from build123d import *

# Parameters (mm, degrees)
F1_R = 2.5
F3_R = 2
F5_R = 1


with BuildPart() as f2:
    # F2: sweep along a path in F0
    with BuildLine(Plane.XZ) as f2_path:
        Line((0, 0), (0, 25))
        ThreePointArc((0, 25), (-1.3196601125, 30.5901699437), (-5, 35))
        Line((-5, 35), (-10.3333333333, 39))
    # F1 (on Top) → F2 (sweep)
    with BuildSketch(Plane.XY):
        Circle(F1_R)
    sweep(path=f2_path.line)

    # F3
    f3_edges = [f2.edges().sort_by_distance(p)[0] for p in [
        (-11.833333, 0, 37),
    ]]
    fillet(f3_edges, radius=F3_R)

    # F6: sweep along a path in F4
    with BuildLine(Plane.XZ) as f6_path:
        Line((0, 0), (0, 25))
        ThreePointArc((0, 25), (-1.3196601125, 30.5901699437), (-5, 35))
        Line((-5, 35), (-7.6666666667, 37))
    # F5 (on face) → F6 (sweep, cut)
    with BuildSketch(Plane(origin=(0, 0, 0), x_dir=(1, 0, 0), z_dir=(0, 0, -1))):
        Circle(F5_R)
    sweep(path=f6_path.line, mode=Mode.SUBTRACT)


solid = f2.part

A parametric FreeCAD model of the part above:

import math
import FreeCAD as App
import Part
import Sketcher


def edges_at(feature, points):
    """Names of the edges that pass closest to the given points."""
    edges = feature.Shape.Edges
    near = lambda p: min(range(len(edges)), key=lambda i: edges[i].distToShape(Part.Vertex(*p))[0])
    return sorted({f"Edge{near(p) + 1}" for p in points})

doc = App.newDocument("Part")
body = doc.addObject("PartDesign::Body", "Body")

# Sketch on XY plane
sketch1 = doc.addObject("Sketcher::SketchObject", "Sketch")
body.addObject(sketch1)
sketch1.AttachmentSupport = (doc.XY_Plane, [""])
sketch1.MapMode = "FlatFace"
sketch1.addGeometry(Part.Circle(App.Vector(0, 0, 0), App.Vector(0, 0, 1), 2.5), False)
sketch1.addConstraint(Sketcher.Constraint("Coincident", 0, 3, -1, 1))
sketch1.addConstraint(Sketcher.Constraint("Diameter", 0, 5.0))

# Sketch on XZ plane
sketch2 = doc.addObject("Sketcher::SketchObject", "Sketch001")
body.addObject(sketch2)
sketch2.AttachmentSupport = (doc.XZ_Plane, [""])
sketch2.MapMode = "FlatFace"
sketch2.addGeometry(Part.LineSegment(App.Vector(0, 0, 0), App.Vector(0, 25, 0)), False)
sketch2.addGeometry(Part.ArcOfCircle(Part.Circle(App.Vector(-12.5, 25, 0), App.Vector(0, 0, 1), 12.5), math.radians(0), math.radians(53.130102)), False)
sketch2.addGeometry(Part.LineSegment(App.Vector(-5, 35, 0), App.Vector(-10.333333, 39, 0)), False)
sketch2.addConstraint(Sketcher.Constraint("Tangent", 0, 2, 1, 1))
sketch2.addConstraint(Sketcher.Constraint("Tangent", 1, 2, 2, 1))
sketch2.addConstraint(Sketcher.Constraint("Vertical", 0))
sketch2.addConstraint(Sketcher.Constraint("Coincident", 0, 1, -1, 1))
sketch2.addConstraint(Sketcher.Constraint("Radius", 1, 12.5))
sketch2.addConstraint(Sketcher.Constraint("DistanceY", 0, 1, 0, 2, 25.0))
sketch2.addConstraint(Sketcher.Constraint("DistanceX", 1, 2, -1, 1, 5.0))
sketch2.addConstraint(Sketcher.Constraint("DistanceY", -1, 1, 2, 2, 39.0))
doc.recompute()

additivepipe = doc.addObject("PartDesign::AdditivePipe", "AdditivePipe")
body.addObject(additivepipe)
additivepipe.Profile = sketch1
additivepipe.Spine = (sketch2, ["Edge1", "Edge2", "Edge3"])
doc.recompute()

fillet = doc.addObject("PartDesign::Fillet", "Fillet")
body.addObject(fillet)
fillet.Base = (additivepipe, edges_at(additivepipe, [(-11.833, 0, 37)]))
fillet.Radius = 2

# Sketch on XY plane
sketch3 = doc.addObject("Sketcher::SketchObject", "Sketch002")
body.addObject(sketch3)
sketch3.AttachmentSupport = (doc.XY_Plane, [""])
sketch3.MapMode = "FlatFace"
sketch3.addGeometry(Part.Circle(App.Vector(0, 0, 0), App.Vector(0, 0, 1), 1), False)
sketch3.addConstraint(Sketcher.Constraint("Coincident", 0, 3, -1, 1))
sketch3.addConstraint(Sketcher.Constraint("Diameter", 0, 2.0))

# Sketch on XZ plane
sketch4 = doc.addObject("Sketcher::SketchObject", "Sketch003")
body.addObject(sketch4)
sketch4.AttachmentSupport = (doc.XZ_Plane, [""])
sketch4.MapMode = "FlatFace"
sketch4.addGeometry(Part.LineSegment(App.Vector(0, 0, 0), App.Vector(0, 25, 0)), False)
sketch4.addGeometry(Part.ArcOfCircle(Part.Circle(App.Vector(-12.5, 25, 0), App.Vector(0, 0, 1), 12.5), math.radians(0), math.radians(53.130102)), False)
sketch4.addGeometry(Part.LineSegment(App.Vector(-5, 35, 0), App.Vector(-7.666667, 37, 0)), False)
sketch4.addConstraint(Sketcher.Constraint("Tangent", 0, 2, 1, 1))
sketch4.addConstraint(Sketcher.Constraint("Tangent", 1, 2, 2, 1))
sketch4.addConstraint(Sketcher.Constraint("Vertical", 0))
sketch4.addConstraint(Sketcher.Constraint("Coincident", 0, 1, -1, 1))
sketch4.addConstraint(Sketcher.Constraint("Radius", 1, 12.5))
sketch4.addConstraint(Sketcher.Constraint("DistanceY", 0, 1, 0, 2, 25.0))
sketch4.addConstraint(Sketcher.Constraint("DistanceX", 1, 2, -1, 1, 5.0))
sketch4.addConstraint(Sketcher.Constraint("DistanceY", -1, 1, 2, 2, 37.0))
doc.recompute()

subtractivepipe = doc.addObject("PartDesign::SubtractivePipe", "SubtractivePipe")
body.addObject(subtractivepipe)
subtractivepipe.Profile = sketch3
subtractivepipe.Spine = (sketch4, ["Edge1", "Edge2", "Edge3"])

doc.recompute()
